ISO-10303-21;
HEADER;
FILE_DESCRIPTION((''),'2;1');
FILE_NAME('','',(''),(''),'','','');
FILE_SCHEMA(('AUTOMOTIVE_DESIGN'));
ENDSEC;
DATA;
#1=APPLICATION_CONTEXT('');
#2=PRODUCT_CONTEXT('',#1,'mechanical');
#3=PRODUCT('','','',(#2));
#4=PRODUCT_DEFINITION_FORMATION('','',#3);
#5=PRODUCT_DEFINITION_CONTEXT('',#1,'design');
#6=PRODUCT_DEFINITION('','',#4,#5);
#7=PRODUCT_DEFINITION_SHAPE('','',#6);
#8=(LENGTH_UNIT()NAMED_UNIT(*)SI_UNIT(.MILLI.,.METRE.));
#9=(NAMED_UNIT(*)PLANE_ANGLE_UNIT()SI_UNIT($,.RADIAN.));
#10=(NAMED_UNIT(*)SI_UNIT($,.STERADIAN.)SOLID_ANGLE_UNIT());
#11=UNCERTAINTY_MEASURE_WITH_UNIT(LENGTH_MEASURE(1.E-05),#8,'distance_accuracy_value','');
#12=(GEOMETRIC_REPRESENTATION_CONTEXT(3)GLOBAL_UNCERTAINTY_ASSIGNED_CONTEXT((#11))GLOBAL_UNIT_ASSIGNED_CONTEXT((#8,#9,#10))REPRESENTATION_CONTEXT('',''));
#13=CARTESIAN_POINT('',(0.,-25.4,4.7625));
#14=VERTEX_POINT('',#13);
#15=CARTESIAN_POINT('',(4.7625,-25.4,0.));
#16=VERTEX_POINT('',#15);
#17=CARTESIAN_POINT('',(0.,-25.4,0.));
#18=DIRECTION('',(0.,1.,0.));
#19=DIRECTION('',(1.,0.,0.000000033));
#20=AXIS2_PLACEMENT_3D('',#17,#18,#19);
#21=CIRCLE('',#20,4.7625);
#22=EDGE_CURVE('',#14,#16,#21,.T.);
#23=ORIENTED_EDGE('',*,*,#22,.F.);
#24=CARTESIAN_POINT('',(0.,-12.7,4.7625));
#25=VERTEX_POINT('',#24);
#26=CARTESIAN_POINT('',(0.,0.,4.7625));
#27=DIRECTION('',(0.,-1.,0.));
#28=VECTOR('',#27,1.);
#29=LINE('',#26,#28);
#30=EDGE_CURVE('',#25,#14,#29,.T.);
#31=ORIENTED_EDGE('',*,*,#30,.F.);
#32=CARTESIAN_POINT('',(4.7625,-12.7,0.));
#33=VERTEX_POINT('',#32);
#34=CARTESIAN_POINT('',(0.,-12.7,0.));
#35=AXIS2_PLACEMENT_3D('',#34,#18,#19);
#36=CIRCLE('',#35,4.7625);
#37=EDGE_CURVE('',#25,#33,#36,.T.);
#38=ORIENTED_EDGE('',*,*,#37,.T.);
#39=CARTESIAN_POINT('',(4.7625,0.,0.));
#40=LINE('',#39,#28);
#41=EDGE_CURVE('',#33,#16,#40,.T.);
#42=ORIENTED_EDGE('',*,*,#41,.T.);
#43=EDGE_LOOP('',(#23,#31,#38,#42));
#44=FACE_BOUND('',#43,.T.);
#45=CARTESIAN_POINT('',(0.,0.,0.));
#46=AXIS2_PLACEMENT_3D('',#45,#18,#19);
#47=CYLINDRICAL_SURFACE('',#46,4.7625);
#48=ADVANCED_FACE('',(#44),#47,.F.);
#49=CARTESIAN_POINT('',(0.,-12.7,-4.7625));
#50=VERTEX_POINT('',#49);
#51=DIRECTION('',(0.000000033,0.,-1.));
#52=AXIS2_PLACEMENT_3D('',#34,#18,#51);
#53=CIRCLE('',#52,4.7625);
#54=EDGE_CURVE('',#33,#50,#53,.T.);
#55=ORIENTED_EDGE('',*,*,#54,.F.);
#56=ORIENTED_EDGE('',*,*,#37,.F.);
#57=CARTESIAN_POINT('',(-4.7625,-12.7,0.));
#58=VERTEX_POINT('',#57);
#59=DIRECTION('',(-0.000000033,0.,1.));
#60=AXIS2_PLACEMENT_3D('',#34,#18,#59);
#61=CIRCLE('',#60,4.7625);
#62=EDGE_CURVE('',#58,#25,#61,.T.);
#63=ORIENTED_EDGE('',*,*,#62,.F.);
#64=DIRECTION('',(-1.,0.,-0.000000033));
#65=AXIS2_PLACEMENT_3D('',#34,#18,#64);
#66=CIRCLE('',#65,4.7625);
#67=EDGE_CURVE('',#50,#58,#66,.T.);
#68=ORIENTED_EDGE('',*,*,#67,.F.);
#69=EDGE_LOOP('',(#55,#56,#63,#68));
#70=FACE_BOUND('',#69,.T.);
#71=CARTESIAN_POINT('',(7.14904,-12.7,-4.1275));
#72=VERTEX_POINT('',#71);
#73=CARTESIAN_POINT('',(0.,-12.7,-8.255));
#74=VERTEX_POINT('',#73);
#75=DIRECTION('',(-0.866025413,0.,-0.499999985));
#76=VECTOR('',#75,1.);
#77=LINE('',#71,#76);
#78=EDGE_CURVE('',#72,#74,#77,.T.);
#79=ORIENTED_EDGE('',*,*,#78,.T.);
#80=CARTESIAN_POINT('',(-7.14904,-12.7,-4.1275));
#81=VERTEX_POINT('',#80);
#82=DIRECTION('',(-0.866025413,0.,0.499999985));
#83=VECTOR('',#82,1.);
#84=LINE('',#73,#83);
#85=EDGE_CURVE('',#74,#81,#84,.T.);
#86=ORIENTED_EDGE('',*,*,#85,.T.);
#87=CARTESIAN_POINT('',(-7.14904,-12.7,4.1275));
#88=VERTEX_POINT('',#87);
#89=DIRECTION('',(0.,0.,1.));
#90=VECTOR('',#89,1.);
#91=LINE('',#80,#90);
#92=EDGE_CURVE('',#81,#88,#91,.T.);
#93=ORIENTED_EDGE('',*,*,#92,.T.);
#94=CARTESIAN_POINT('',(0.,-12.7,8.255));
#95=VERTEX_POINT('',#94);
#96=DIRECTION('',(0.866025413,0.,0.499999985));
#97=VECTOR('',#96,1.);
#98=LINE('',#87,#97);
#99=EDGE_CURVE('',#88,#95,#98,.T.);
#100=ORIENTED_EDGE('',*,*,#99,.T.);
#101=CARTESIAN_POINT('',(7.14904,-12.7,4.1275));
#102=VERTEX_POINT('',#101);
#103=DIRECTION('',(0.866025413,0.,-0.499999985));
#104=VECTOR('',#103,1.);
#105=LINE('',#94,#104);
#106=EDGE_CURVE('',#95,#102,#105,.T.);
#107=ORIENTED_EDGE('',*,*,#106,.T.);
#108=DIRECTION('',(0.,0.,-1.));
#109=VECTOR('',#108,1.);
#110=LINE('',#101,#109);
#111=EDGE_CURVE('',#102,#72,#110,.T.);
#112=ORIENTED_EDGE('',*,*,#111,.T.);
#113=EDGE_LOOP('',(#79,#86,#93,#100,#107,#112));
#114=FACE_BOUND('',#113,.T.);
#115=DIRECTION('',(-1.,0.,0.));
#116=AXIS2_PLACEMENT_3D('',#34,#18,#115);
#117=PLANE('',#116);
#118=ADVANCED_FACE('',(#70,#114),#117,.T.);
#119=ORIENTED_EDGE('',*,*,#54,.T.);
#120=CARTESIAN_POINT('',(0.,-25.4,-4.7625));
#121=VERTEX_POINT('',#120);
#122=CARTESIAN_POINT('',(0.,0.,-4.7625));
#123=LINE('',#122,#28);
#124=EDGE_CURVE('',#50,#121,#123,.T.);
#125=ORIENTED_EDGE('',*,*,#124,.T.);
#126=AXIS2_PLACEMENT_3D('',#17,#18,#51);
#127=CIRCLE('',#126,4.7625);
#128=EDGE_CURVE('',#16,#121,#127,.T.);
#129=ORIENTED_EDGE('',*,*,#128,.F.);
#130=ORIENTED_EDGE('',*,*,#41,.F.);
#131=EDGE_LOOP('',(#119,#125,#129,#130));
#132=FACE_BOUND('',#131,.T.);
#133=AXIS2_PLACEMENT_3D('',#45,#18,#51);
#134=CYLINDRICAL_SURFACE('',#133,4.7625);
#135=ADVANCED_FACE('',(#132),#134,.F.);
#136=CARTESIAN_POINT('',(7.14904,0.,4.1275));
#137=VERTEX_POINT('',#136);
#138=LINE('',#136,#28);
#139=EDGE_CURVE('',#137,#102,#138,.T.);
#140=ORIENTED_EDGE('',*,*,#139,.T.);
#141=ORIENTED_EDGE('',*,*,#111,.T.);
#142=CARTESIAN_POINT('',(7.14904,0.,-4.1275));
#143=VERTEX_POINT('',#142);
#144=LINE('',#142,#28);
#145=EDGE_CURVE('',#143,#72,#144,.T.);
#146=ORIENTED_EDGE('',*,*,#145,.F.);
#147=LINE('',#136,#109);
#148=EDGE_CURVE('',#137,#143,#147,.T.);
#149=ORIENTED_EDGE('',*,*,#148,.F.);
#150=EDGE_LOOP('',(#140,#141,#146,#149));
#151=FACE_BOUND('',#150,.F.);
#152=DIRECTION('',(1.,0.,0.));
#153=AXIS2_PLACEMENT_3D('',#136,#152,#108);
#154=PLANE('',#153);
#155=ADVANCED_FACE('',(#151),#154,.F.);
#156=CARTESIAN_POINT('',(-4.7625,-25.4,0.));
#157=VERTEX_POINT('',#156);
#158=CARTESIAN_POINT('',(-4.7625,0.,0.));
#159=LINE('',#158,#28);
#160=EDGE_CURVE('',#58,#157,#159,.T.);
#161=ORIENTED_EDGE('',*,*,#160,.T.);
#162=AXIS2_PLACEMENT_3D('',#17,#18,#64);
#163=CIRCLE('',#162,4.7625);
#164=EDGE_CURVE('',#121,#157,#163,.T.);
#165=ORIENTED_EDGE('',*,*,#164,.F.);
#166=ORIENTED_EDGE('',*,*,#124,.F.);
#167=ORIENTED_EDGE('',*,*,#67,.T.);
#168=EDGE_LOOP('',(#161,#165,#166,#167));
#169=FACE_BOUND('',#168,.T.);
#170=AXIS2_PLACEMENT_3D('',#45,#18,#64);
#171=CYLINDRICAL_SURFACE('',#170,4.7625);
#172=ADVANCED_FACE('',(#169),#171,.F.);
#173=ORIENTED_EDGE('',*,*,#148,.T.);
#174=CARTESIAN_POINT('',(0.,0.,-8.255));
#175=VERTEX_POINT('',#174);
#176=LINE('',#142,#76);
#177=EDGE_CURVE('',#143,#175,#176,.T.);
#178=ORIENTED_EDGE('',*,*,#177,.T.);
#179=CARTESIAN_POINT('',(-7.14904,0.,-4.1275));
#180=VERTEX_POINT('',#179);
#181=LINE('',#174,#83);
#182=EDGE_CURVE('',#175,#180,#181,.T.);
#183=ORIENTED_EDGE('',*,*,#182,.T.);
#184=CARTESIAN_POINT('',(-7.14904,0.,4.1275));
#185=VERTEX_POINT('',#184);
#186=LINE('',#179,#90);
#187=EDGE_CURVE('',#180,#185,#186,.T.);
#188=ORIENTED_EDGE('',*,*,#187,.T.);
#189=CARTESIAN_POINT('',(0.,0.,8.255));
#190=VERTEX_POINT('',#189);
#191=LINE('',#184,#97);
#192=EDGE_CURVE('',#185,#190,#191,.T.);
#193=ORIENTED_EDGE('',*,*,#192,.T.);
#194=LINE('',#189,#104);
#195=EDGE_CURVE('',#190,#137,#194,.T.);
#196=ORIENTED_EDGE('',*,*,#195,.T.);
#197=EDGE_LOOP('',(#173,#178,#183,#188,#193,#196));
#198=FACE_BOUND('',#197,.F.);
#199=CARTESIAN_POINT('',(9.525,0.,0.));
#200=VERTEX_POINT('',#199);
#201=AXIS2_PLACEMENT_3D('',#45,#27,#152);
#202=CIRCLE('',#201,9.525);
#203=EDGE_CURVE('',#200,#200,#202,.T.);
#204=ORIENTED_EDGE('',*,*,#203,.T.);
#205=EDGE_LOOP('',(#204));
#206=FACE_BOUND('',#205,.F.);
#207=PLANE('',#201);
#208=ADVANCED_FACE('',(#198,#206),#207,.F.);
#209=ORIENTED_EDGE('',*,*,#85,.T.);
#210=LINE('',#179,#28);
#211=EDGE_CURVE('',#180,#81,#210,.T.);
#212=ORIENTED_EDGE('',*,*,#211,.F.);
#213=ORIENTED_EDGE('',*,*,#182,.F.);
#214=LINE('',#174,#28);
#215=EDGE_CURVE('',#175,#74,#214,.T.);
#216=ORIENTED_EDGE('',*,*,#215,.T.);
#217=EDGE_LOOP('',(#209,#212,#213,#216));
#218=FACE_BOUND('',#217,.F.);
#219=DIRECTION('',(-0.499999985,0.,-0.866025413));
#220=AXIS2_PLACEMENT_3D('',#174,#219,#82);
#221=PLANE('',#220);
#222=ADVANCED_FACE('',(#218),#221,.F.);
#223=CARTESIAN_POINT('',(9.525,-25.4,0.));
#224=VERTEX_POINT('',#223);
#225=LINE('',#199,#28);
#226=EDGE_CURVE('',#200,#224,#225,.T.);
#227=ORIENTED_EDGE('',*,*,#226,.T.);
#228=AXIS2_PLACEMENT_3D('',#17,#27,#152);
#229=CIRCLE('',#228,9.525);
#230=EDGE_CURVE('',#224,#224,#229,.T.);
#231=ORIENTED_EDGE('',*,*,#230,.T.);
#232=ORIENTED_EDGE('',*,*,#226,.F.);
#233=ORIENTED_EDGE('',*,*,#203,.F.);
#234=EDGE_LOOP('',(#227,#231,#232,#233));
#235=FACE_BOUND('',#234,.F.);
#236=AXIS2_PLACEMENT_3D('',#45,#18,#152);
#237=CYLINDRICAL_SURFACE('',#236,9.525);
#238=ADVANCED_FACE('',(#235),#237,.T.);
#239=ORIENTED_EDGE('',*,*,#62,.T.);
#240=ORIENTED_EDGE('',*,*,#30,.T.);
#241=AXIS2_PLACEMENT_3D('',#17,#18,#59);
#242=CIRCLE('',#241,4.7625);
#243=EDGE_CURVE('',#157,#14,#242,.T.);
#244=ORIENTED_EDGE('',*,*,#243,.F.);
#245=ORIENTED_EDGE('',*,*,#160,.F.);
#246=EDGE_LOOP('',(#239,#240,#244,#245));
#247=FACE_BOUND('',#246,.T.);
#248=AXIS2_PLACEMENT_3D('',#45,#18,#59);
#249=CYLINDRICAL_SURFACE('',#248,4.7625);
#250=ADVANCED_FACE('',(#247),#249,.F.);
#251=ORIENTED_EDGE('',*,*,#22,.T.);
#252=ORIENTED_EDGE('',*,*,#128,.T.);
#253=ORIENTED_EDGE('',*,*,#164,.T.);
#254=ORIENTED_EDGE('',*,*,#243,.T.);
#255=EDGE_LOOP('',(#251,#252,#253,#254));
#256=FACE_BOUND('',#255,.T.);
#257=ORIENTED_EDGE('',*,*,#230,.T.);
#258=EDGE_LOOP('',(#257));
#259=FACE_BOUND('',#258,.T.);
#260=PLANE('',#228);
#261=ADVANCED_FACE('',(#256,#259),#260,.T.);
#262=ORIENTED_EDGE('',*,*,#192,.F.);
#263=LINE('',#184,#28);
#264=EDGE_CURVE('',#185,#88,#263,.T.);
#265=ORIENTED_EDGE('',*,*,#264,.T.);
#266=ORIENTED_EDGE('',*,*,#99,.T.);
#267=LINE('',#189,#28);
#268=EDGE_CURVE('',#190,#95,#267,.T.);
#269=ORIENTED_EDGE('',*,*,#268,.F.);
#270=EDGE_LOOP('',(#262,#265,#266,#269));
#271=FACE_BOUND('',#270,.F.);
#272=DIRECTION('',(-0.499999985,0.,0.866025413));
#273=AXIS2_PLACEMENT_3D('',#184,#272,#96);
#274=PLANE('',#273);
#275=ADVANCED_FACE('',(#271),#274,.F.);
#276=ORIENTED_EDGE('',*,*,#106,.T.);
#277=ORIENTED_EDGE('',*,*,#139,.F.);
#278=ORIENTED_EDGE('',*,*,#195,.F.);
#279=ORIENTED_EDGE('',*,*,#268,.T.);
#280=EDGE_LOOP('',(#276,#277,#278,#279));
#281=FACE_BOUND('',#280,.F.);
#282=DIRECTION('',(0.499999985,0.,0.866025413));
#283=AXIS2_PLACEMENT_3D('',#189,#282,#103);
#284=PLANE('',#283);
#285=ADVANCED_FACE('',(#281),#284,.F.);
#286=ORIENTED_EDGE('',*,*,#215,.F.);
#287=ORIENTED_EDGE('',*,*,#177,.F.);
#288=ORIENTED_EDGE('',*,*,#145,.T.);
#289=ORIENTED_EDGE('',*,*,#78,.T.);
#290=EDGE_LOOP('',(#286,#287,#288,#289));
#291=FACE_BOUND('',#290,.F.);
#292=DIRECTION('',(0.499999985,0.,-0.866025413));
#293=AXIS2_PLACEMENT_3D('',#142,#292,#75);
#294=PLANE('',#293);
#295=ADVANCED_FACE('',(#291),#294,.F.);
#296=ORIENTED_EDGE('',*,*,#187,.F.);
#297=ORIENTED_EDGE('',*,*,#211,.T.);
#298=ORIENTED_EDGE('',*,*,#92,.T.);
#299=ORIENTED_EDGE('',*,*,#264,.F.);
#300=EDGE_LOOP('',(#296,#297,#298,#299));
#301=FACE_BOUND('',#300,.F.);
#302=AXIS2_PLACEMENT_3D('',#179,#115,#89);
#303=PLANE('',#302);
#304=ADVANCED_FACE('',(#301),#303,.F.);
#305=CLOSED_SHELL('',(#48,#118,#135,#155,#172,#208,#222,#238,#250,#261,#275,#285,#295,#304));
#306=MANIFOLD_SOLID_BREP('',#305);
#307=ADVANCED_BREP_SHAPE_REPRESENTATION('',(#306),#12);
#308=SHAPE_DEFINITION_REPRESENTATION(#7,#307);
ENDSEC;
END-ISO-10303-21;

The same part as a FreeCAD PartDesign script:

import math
import FreeCAD as App
import Part
import Sketcher
from FreeCAD import Vector
Q = App.Units.Quantity


def add_polygon(sketch, points):
    """Adds a closed chain of lines whose ends are joined by coincident constraints."""
    first, n = sketch.GeometryCount, len(points)
    for a, b in zip(points, points[1:] + points[:1]):
        sketch.addGeometry(Part.LineSegment(App.Vector(*a, 0), App.Vector(*b, 0)), False)
    for i in range(n):
        sketch.addConstraint(Sketcher.Constraint("Coincident", first + i, 2, first + (i + 1) % n, 1))

doc = App.newDocument("Part")
params = doc.addObject("Spreadsheet::Sheet", "Params")
for row, (alias, value) in enumerate([
    ("sketch1_diameter", "0.75 in"),
    ("pad1_length", "1 in"),
    ("sketch2_radius", "0.1875 in"),
    ("pad2_length", "1 in"),
    ("sketch3_radius", "0.1875 in"),
    ("sketch4_radius", "0.1875 in"),
    ("pocket2_length", "0.375 in"),
    ("sketch5_height", "0.325 in"),
    ("pocket3_length", "0.5 in"),
], start=1):
    params.set(f"A{row}", alias)
    params.set(f"B{row}", "=" + value)
    params.setAlias(f"B{row}", alias)

body = doc.addObject("PartDesign::Body", "Body")

# Sketch on XZ plane
sketch1 = body.newObject("Sketcher::SketchObject", "Sketch")
sketch1.AttachmentSupport = (doc.getObject("XZ_Plane"), [""])
sketch1.MapMode = "FlatFace"
sketch1.addGeometry(Part.Circle(Vector(0, 0, 0), Vector(0, 0, 1), 9.525), False)
sketch1.addConstraint([
    Sketcher.Constraint("Coincident", 0, 3, -1, 1),
    Sketcher.Constraint("Diameter", 0, Q("0.75 in")),
])
sketch1.setExpression("Constraints[1]", "Params.sketch1_diameter")
pad1 = body.newObject("PartDesign::Pad", "Pad")
pad1.Profile = sketch1
pad1.setExpression("Length", "Params.pad1_length")

# Sketch on XZ plane
sketch2 = body.newObject("Sketcher::SketchObject", "Sketch001")
sketch2.AttachmentSupport = (doc.getObject("XZ_Plane"), [""])
sketch2.MapMode = "FlatFace"
sketch2.addGeometry([
    Part.LineSegment(Vector(0, -4.7625, 0), Vector(4.7625, -4.7625, 0)),  # 0
    Part.LineSegment(Vector(4.7625, -4.7625, 0), Vector(4.7625, 0, 0)),  # 1
    Part.ArcOfCircle(Part.Circle(Vector(0, 0, 0), Vector(0, 0, 1), 4.7625), math.radians(-89.999998), math.radians(-0.000002)),  # 2
    Part.LineSegment(Vector(-4.7625, -4.7625, 0), Vector(0, -4.7625, 0)),  # 3
    Part.ArcOfCircle(Part.Circle(Vector(0, 0, 0), Vector(0, 0, 1), 4.7625), math.radians(-179.999998), math.radians(-90.000002)),  # 4
    Part.LineSegment(Vector(-4.7625, 0, 0), Vector(-4.7625, -4.7625, 0)),  # 5
    Part.ArcOfCircle(Part.Circle(Vector(0, 0, 0), Vector(0, 0, 1), 4.7625), math.radians(0.000002), math.radians(89.999998)),  # 6
    Part.LineSegment(Vector(4.7625, 0, 0), Vector(4.7625, 4.7625, 0)),  # 7
    Part.LineSegment(Vector(4.7625, 4.7625, 0), Vector(0, 4.7625, 0)),  # 8
    Part.LineSegment(Vector(-4.7625, 4.7625, 0), Vector(-4.7625, 0, 0)),  # 9
    Part.ArcOfCircle(Part.Circle(Vector(0, 0, 0), Vector(0, 0, 1), 4.7625), math.radians(90.000002), math.radians(179.999998)),  # 10
    Part.LineSegment(Vector(0, 4.7625, 0), Vector(-4.7625, 4.7625, 0)),  # 11
], False)
sketch2.addConstraint([
    Sketcher.Constraint("Coincident", 0, 2, 1, 1),
    Sketcher.Constraint("Tangent", 1, 2, 2, 2),
    Sketcher.Constraint("Tangent", 2, 1, 0, 1),
    Sketcher.Constraint("Tangent", 3, 2, 4, 2),
    Sketcher.Constraint("Tangent", 4, 1, 5, 1),
    Sketcher.Constraint("Coincident", 5, 2, 3, 1),
    Sketcher.Constraint("Tangent", 6, 1, 7, 1),
    Sketcher.Constraint("Coincident", 7, 2, 8, 1),
    Sketcher.Constraint("Tangent", 8, 2, 6, 2),
    Sketcher.Constraint("Tangent", 9, 2, 10, 2),
    Sketcher.Constraint("Tangent", 10, 1, 11, 1),
    Sketcher.Constraint("Coincident", 11, 2, 9, 1),
    Sketcher.Constraint("Horizontal", 0),
    Sketcher.Constraint("Vertical", 1),
    Sketcher.Constraint("Horizontal", 3),
    Sketcher.Constraint("Vertical", 5),
    Sketcher.Constraint("Vertical", 7),
    Sketcher.Constraint("Horizontal", 8),
    Sketcher.Constraint("Vertical", 9),
    Sketcher.Constraint("Horizontal", 11),
    Sketcher.Constraint("Coincident", 2, 3, -1, 1),
    Sketcher.Constraint("Coincident", 4, 3, -1, 1),
    Sketcher.Constraint("Coincident", 6, 3, -1, 1),
    Sketcher.Constraint("Coincident", 10, 3, -1, 1),
    Sketcher.Constraint("Equal", 2, 4),
    Sketcher.Constraint("Equal", 4, 6),
    Sketcher.Constraint("Equal", 6, 10),
    Sketcher.Constraint("Radius", 2, Q("0.1875 in")),
])
sketch2.setExpression("Constraints[27]", "Params.sketch2_radius")
pad2 = body.newObject("PartDesign::Pad", "Pad001")
pad2.Profile = sketch2
pad2.setExpression("Length", "Params.pad2_length")

# Sketch on XZ plane
sketch3 = body.newObject("Sketcher::SketchObject", "Sketch002")
sketch3.AttachmentSupport = (doc.getObject("XZ_Plane"), [""])
sketch3.MapMode = "FlatFace"
sketch3.addGeometry([
    Part.ArcOfCircle(Part.Circle(Vector(0, 0, 0), Vector(0, 0, 1), 4.7625), math.radians(-179.999998), math.radians(-90.000002)),
    Part.ArcOfCircle(Part.Circle(Vector(0, 0, 0), Vector(0, 0, 1), 4.7625), math.radians(-89.999998), math.radians(-0.000002)),
    Part.ArcOfCircle(Part.Circle(Vector(0, 0, 0), Vector(0, 0, 1), 4.7625), math.radians(0.000002), math.radians(89.999998)),
    Part.ArcOfCircle(Part.Circle(Vector(0, 0, 0), Vector(0, 0, 1), 4.7625), math.radians(90.000002), math.radians(179.999998)),
], False)
sketch3.addConstraint([
    Sketcher.Constraint("Tangent", 0, 2, 1, 1),
    Sketcher.Constraint("Tangent", 1, 2, 2, 1),
    Sketcher.Constraint("Tangent", 2, 2, 3, 1),
    Sketcher.Constraint("Tangent", 3, 2, 0, 1),
    Sketcher.Constraint("Coincident", 0, 3, -1, 1),
    Sketcher.Constraint("Equal", 0, 1),
    Sketcher.Constraint("PointOnObject", 0, 2, -2),
    Sketcher.Constraint("PointOnObject", 1, 2, -1),
    Sketcher.Constraint("PointOnObject", 2, 2, -2),
    Sketcher.Constraint("PointOnObject", 3, 2, -1),
    Sketcher.Constraint("Radius", 0, Q("0.1875 in")),
])
sketch3.setExpression("Constraints[10]", "Params.sketch3_radius")
pocket1 = body.newObject("PartDesign::Pocket", "Pocket")
pocket1.Profile = sketch3
pocket1.Type = "ThroughAll"
pocket1.Reversed = True

# Sketch on XZ plane
sketch4 = body.newObject("Sketcher::SketchObject", "Sketch003")
sketch4.AttachmentSupport = (doc.getObject("XZ_Plane"), [""])
sketch4.MapMode = "FlatFace"
sketch4.addGeometry([
    Part.LineSegment(Vector(0, -4.7625, 0), Vector(4.7625, -4.7625, 0)),  # 0
    Part.LineSegment(Vector(4.7625, -4.7625, 0), Vector(4.7625, 0, 0)),  # 1
    Part.ArcOfCircle(Part.Circle(Vector(0, 0, 0), Vector(0, 0, 1), 4.7625), math.radians(-89.999998), math.radians(-0.000002)),  # 2
    Part.LineSegment(Vector(-4.7625, -4.7625, 0), Vector(0, -4.7625, 0)),  # 3
    Part.ArcOfCircle(Part.Circle(Vector(0, 0, 0), Vector(0, 0, 1), 4.7625), math.radians(-179.999998), math.radians(-90.000002)),  # 4
    Part.LineSegment(Vector(-4.7625, 0, 0), Vector(-4.7625, -4.7625, 0)),  # 5
    Part.ArcOfCircle(Part.Circle(Vector(0, 0, 0), Vector(0, 0, 1), 4.7625), math.radians(0.000002), math.radians(89.999998)),  # 6
    Part.LineSegment(Vector(4.7625, 0, 0), Vector(4.7625, 4.7625, 0)),  # 7
    Part.LineSegment(Vector(4.7625, 4.7625, 0), Vector(0, 4.7625, 0)),  # 8
    Part.LineSegment(Vector(-4.7625, 4.7625, 0), Vector(-4.7625, 0, 0)),  # 9
    Part.ArcOfCircle(Part.Circle(Vector(0, 0, 0), Vector(0, 0, 1), 4.7625), math.radians(90.000002), math.radians(179.999998)),  # 10
    Part.LineSegment(Vector(0, 4.7625, 0), Vector(-4.7625, 4.7625, 0)),  # 11
], False)
sketch4.addConstraint([
    Sketcher.Constraint("Coincident", 0, 2, 1, 1),
    Sketcher.Constraint("Tangent", 1, 2, 2, 2),
    Sketcher.Constraint("Tangent", 2, 1, 0, 1),
    Sketcher.Constraint("Tangent", 3, 2, 4, 2),
    Sketcher.Constraint("Tangent", 4, 1, 5, 1),
    Sketcher.Constraint("Coincident", 5, 2, 3, 1),
    Sketcher.Constraint("Tangent", 6, 1, 7, 1),
    Sketcher.Constraint("Coincident", 7, 2, 8, 1),
    Sketcher.Constraint("Tangent", 8, 2, 6, 2),
    Sketcher.Constraint("Tangent", 9, 2, 10, 2),
    Sketcher.Constraint("Tangent", 10, 1, 11, 1),
    Sketcher.Constraint("Coincident", 11, 2, 9, 1),
    Sketcher.Constraint("Horizontal", 0),
    Sketcher.Constraint("Vertical", 1),
    Sketcher.Constraint("Horizontal", 3),
    Sketcher.Constraint("Vertical", 5),
    Sketcher.Constraint("Vertical", 7),
    Sketcher.Constraint("Horizontal", 8),
    Sketcher.Constraint("Vertical", 9),
    Sketcher.Constraint("Horizontal", 11),
    Sketcher.Constraint("Coincident", 2, 3, -1, 1),
    Sketcher.Constraint("Coincident", 4, 3, -1, 1),
    Sketcher.Constraint("Coincident", 6, 3, -1, 1),
    Sketcher.Constraint("Coincident", 10, 3, -1, 1),
    Sketcher.Constraint("Equal", 2, 4),
    Sketcher.Constraint("Equal", 4, 6),
    Sketcher.Constraint("Equal", 6, 10),
    Sketcher.Constraint("Radius", 2, Q("0.1875 in")),
])
sketch4.setExpression("Constraints[27]", "Params.sketch4_radius")
pocket2 = body.newObject("PartDesign::Pocket", "Pocket001")
pocket2.Profile = sketch4
pocket2.setExpression("Length", "Params.pocket2_length")
pocket2.Reversed = True

# Sketch on XZ plane
sketch5 = body.newObject("Sketcher::SketchObject", "Sketch004")
sketch5.AttachmentSupport = (doc.getObject("XZ_Plane"), [""])
sketch5.MapMode = "FlatFace"
add_polygon(sketch5, [(-7.14904, -4.1275), (-7.14904, 4.1275), (0, 8.255), (7.14904, 4.1275), (7.14904, -4.1275), (0, -8.255)])  # lines 0-5
sketch5.addConstraint([
    Sketcher.Constraint("Vertical", 0),
    Sketcher.Constraint("Vertical", 3),
    Sketcher.Constraint("Symmetric", 0, 2, 3, 2, -1, 1),
    Sketcher.Constraint("Symmetric", 1, 2, 4, 2, -1, 1),
    Sketcher.Constraint("PointOnObject", 1, 2, -2),
    Sketcher.Constraint("Parallel", 2, 5),
    Sketcher.Constraint("Horizontal", 0, 2, 2, 2),
    Sketcher.Constraint("Angle", 1, Q("29.999999 deg")),
    Sketcher.Constraint("DistanceY", 0, 1, 0, 2, Q("0.325 in")),
    Sketcher.Constraint("DistanceY", 4, 2, 1, 2, Q("0.65 in")),
])
sketch5.setExpression("Constraints[14]", "Params.sketch5_height")
pocket3 = body.newObject("PartDesign::Pocket", "Pocket002")
pocket3.Profile = sketch5
pocket3.setExpression("Length", "Params.pocket3_length")
pocket3.Reversed = True

doc.recompute()
